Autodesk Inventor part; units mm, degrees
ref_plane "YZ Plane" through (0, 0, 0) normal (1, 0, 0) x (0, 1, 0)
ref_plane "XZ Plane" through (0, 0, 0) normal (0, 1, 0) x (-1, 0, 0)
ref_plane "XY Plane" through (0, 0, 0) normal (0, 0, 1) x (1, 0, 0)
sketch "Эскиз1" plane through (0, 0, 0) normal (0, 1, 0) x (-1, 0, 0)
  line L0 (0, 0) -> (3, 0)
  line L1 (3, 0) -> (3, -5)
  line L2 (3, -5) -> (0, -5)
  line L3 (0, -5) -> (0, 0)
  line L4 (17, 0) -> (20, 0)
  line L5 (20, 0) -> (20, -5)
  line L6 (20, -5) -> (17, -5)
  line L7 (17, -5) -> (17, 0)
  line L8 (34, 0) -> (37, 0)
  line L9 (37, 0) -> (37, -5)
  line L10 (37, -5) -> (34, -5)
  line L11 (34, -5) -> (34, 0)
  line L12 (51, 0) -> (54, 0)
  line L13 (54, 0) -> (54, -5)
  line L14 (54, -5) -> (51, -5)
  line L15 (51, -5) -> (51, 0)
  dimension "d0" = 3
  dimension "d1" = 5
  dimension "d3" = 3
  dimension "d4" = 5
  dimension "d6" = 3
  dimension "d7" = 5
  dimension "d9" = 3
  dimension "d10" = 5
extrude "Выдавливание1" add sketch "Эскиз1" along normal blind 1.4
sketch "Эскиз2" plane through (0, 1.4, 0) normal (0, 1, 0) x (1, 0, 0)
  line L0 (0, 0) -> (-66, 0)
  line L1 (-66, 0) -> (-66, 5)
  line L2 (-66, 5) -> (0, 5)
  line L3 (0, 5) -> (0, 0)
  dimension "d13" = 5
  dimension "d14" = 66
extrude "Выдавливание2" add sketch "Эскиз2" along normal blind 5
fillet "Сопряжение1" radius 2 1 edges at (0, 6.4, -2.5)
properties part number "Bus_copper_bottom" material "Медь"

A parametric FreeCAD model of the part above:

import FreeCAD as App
import Part
import Sketcher


def edges_at(feature, points):
    """Names of the edges that pass closest to the given points."""
    edges = feature.Shape.Edges
    near = lambda p: min(range(len(edges)), key=lambda i: edges[i].distToShape(Part.Vertex(*p))[0])
    return sorted({f"Edge{near(p) + 1}" for p in points})

doc = App.newDocument("Part")
params = doc.addObject("Spreadsheet::Sheet", "Params")
for row, (alias, value) in enumerate([
    ("sketch1_width", "3 mm"),
    ("sketch1_height", "5 mm"),
    ("pad1_length", "1.4 mm"),
    ("sketch2_width", "66 mm"),
    ("sketch2_height", "5 mm"),
    ("pad2_length", "5 mm"),
    ("fillet_radius", "2 mm"),
], start=1):
    params.set(f"A{row}", alias)
    params.set(f"B{row}", "=" + value)
    params.setAlias(f"B{row}", alias)

body = doc.addObject("PartDesign::Body", "Body")
body.AllowCompound = True

# Sketch on XZ plane
sketch1 = doc.addObject("Sketcher::SketchObject", "Sketch")
body.addObject(sketch1)
sketch1.AttachmentSupport = (doc.XZ_Plane, [""])
sketch1.MapMode = "FlatFace"
sketch1.addGeometry([
    Part.LineSegment(App.Vector(-3, 0, 0), App.Vector(0, 0, 0)),  # 0
    Part.LineSegment(App.Vector(0, 0, 0), App.Vector(0, -5, 0)),  # 1
    Part.LineSegment(App.Vector(0, -5, 0), App.Vector(-3, -5, 0)),  # 2
    Part.LineSegment(App.Vector(-3, -5, 0), App.Vector(-3, 0, 0)),  # 3
    Part.LineSegment(App.Vector(-20, 0, 0), App.Vector(-17, 0, 0)),  # 4
    Part.LineSegment(App.Vector(-17, 0, 0), App.Vector(-17, -5, 0)),  # 5
    Part.LineSegment(App.Vector(-17, -5, 0), App.Vector(-20, -5, 0)),  # 6
    Part.LineSegment(App.Vector(-20, -5, 0), App.Vector(-20, 0, 0)),  # 7
    Part.LineSegment(App.Vector(-37, 0, 0), App.Vector(-34, 0, 0)),  # 8
    Part.LineSegment(App.Vector(-34, 0, 0), App.Vector(-34, -5, 0)),  # 9
    Part.LineSegment(App.Vector(-34, -5, 0), App.Vector(-37, -5, 0)),  # 10
    Part.LineSegment(App.Vector(-37, -5, 0), App.Vector(-37, 0, 0)),  # 11
    Part.LineSegment(App.Vector(-54, 0, 0), App.Vector(-51, 0, 0)),  # 12
    Part.LineSegment(App.Vector(-51, 0, 0), App.Vector(-51, -5, 0)),  # 13
    Part.LineSegment(App.Vector(-51, -5, 0), App.Vector(-54, -5, 0)),  # 14
    Part.LineSegment(App.Vector(-54, -5, 0), App.Vector(-54, 0, 0)),  # 15
], False)
sketch1.addConstraint([
    Sketcher.Constraint("Coincident", 0, 2, 1, 1),
    Sketcher.Constraint("Coincident", 1, 2, 2, 1),
    Sketcher.Constraint("Coincident", 2, 2, 3, 1),
    Sketcher.Constraint("Coincident", 3, 2, 0, 1),
    Sketcher.Constraint("Coincident", 4, 2, 5, 1),
    Sketcher.Constraint("Coincident", 5, 2, 6, 1),
    Sketcher.Constraint("Coincident", 6, 2, 7, 1),
    Sketcher.Constraint("Coincident", 7, 2, 4, 1),
    Sketcher.Constraint("Coincident", 8, 2, 9, 1),
    Sketcher.Constraint("Coincident", 9, 2, 10, 1),
    Sketcher.Constraint("Coincident", 10, 2, 11, 1),
    Sketcher.Constraint("Coincident", 11, 2, 8, 1),
    Sketcher.Constraint("Coincident", 12, 2, 13, 1),
    Sketcher.Constraint("Coincident", 13, 2, 14, 1),
    Sketcher.Constraint("Coincident", 14, 2, 15, 1),
    Sketcher.Constraint("Coincident", 15, 2, 12, 1),
    Sketcher.Constraint("Horizontal", 0),
    Sketcher.Constraint("Vertical", 1),
    Sketcher.Constraint("Horizontal", 2),
    Sketcher.Constraint("Vertical", 3),
    Sketcher.Constraint("Horizontal", 4),
    Sketcher.Constraint("Vertical", 5),
    Sketcher.Constraint("Horizontal", 6),
    Sketcher.Constraint("Vertical", 7),
    Sketcher.Constraint("Horizontal", 8),
    Sketcher.Constraint("Vertical", 9),
    Sketcher.Constraint("Horizontal", 10),
    Sketcher.Constraint("Vertical", 11),
    Sketcher.Constraint("Horizontal", 12),
    Sketcher.Constraint("Vertical", 13),
    Sketcher.Constraint("Horizontal", 14),
    Sketcher.Constraint("Vertical", 15),
    Sketcher.Constraint("Coincident", 0, 2, -1, 1),
    Sketcher.Constraint("PointOnObject", 4, 2, -1),
    Sketcher.Constraint("PointOnObject", 8, 2, -1),
    Sketcher.Constraint("PointOnObject", 12, 2, -1),
    Sketcher.Constraint("Horizontal", 2, 2, 5, 2),
    Sketcher.Constraint("Horizontal", 6, 2, 9, 2),
    Sketcher.Constraint("Horizontal", 10, 2, 13, 2),
    Sketcher.Constraint("Equal", 2, 4),
    Sketcher.Constraint("Equal", 6, 8),
    Sketcher.Constraint("Equal", 10, 12),
    Sketcher.Constraint("DistanceX", 0, 1, 0, 2, 3.0),
    Sketcher.Constraint("DistanceY", 1, 2, 1, 1, 5.0),
    Sketcher.Constraint("DistanceX", 4, 2, -1, 1, 17.0),
    Sketcher.Constraint("DistanceX", 8, 2, -1, 1, 34.0),
    Sketcher.Constraint("DistanceX", 12, 2, -1, 1, 51.0),
])
sketch1.setExpression("Constraints[42]", "Params.sketch1_width")
sketch1.setExpression("Constraints[43]", "Params.sketch1_height")
pad1 = doc.addObject("PartDesign::Pad", "Pad")
body.addObject(pad1)
pad1.Profile = sketch1
pad1.setExpression("Length", "Params.pad1_length")
pad1.Reversed = True

# Sketch on XZ plane
sketch2 = doc.addObject("Sketcher::SketchObject", "Sketch001")
body.addObject(sketch2)
sketch2.AttachmentSupport = (doc.XZ_Plane, [""])
sketch2.MapMode = "FlatFace"
sketch2.AttachmentOffset = App.Placement(App.Vector(0, 0, -1.4), App.Rotation())
sketch2.addGeometry([
    Part.LineSegment(App.Vector(-66, 0, 0), App.Vector(0, 0, 0)),
    Part.LineSegment(App.Vector(0, 0, 0), App.Vector(0, -5, 0)),
    Part.LineSegment(App.Vector(0, -5, 0), App.Vector(-66, -5, 0)),
    Part.LineSegment(App.Vector(-66, -5, 0), App.Vector(-66, 0, 0)),
], False)
sketch2.addConstraint([
    Sketcher.Constraint("Coincident", 0, 2, 1, 1),
    Sketcher.Constraint("Coincident", 1, 2, 2, 1),
    Sketcher.Constraint("Coincident", 2, 2, 3, 1),
    Sketcher.Constraint("Coincident", 3, 2, 0, 1),
    Sketcher.Constraint("Horizontal", 0),
    Sketcher.Constraint("Vertical", 1),
    Sketcher.Constraint("Horizontal", 2),
    Sketcher.Constraint("Vertical", 3),
    Sketcher.Constraint("Coincident", 0, 2, -1, 1),
    Sketcher.Constraint("DistanceX", 0, 1, 0, 2, 66.0),
    Sketcher.Constraint("DistanceY", 1, 2, 1, 1, 5.0),
])
sketch2.setExpression("Constraints[9]", "Params.sketch2_width")
sketch2.setExpression("Constraints[10]", "Params.sketch2_height")
pad2 = doc.addObject("PartDesign::Pad", "Pad001")
body.addObject(pad2)
pad2.Profile = sketch2
pad2.setExpression("Length", "Params.pad2_length")
pad2.Reversed = True
doc.recompute()

fillet = doc.addObject("PartDesign::Fillet", "Fillet")
body.addObject(fillet)
fillet.Base = (pad2, edges_at(pad2, [(0, 6.4, -2.5)]))
fillet.setExpression("Radius", "Params.fillet_radius")

doc.recompute()
